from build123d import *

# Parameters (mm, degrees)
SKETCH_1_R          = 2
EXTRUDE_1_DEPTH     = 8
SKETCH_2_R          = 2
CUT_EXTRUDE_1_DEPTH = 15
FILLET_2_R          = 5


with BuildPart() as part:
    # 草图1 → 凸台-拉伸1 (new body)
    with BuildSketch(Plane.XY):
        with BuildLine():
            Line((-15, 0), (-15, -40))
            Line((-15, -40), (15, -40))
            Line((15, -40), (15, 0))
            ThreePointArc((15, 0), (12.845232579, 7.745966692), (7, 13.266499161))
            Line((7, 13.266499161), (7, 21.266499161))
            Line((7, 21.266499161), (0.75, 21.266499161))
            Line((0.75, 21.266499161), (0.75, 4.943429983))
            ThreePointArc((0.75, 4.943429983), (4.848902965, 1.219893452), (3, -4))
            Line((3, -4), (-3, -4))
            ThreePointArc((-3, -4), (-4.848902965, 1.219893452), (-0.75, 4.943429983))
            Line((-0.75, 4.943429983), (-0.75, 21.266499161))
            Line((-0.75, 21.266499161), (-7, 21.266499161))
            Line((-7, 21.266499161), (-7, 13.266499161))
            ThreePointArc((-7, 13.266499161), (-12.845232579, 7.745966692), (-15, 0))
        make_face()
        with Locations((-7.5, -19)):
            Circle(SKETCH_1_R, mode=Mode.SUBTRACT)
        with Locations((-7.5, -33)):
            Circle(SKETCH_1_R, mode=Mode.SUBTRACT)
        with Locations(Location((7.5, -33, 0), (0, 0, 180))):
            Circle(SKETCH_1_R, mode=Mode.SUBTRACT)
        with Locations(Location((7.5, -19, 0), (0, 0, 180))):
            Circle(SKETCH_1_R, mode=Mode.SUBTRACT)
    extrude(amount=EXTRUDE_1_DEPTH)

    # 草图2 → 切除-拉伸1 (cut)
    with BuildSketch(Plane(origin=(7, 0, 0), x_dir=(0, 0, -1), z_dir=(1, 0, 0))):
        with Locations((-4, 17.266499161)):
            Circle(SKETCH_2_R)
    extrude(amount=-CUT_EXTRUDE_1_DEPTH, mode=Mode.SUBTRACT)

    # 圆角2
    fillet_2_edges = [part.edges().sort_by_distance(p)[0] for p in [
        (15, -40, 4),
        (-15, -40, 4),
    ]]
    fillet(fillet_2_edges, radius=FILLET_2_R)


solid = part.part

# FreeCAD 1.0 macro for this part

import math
import FreeCAD as App
import Part
import Sketcher
Q = App.Units.Quantity


def edges_at(feature, points):
    """Names of the edges that pass closest to the given points."""
    edges = feature.Shape.Edges
    near = lambda p: min(range(len(edges)), key=lambda i: edges[i].distToShape(Part.Vertex(*p))[0])
    return sorted({f"Edge{near(p) + 1}" for p in points})

doc = App.newDocument("Part")
body = doc.addObject("PartDesign::Body", "Body")

# Sketch on XY plane
sketch1 = doc.addObject("Sketcher::SketchObject", "Sketch")
body.addObject(sketch1)
sketch1.AttachmentSupport = (doc.XY_Plane, [""])
sketch1.MapMode = "FlatFace"
sketch1.addGeometry(Part.LineSegment(App.Vector(-15, 0, 0), App.Vector(-15, -40, 0)), False)
sketch1.addGeometry(Part.LineSegment(App.Vector(-15, -40, 0), App.Vector(15, -40, 0)), False)
sketch1.addGeometry(Part.LineSegment(App.Vector(15, -40, 0), App.Vector(15, 0, 0)), False)
sketch1.addGeometry(Part.ArcOfCircle(Part.Circle(App.Vector(0, 0, 0), App.Vector(0, 0, 1), 15), math.radians(0), math.radians(62)), False)
sketch1.addGeometry(Part.LineSegment(App.Vector(7, 13.3, 0), App.Vector(7, 21.3, 0)), False)
sketch1.addGeometry(Part.LineSegment(App.Vector(7, 21.3, 0), App.Vector(0.8, 21.3, 0)), False)
sketch1.addGeometry(Part.LineSegment(App.Vector(0.8, 21.3, 0), App.Vector(0.8, 4.9, 0)), False)
sketch1.addGeometry(Part.ArcOfCircle(Part.Circle(App.Vector(0, 0, 0), App.Vector(0, 0, 1), 5), math.radians(-53), math.radians(81)), False)
sketch1.addGeometry(Part.LineSegment(App.Vector(3, -4, 0), App.Vector(-3, -4, 0)), False)
sketch1.addGeometry(Part.ArcOfCircle(Part.Circle(App.Vector(0, 0, 0), App.Vector(0, 0, 1), 5), math.radians(99), math.radians(233)), False)
sketch1.addGeometry(Part.LineSegment(App.Vector(-0.8, 4.9, 0), App.Vector(-0.8, 21.3, 0)), False)
sketch1.addGeometry(Part.LineSegment(App.Vector(-0.8, 21.3, 0), App.Vector(-7, 21.3, 0)), False)
sketch1.addGeometry(Part.LineSegment(App.Vector(-7, 21.3, 0), App.Vector(-7, 13.3, 0)), False)
sketch1.addGeometry(Part.ArcOfCircle(Part.Circle(App.Vector(0, 0, 0), App.Vector(0, 0, 1), 15), math.radians(118), math.radians(180)), False)
sketch1.addGeometry(Part.Circle(App.Vector(-7.5, -33, 0), App.Vector(0, 0, 1), 2), False)
sketch1.addGeometry(Part.Circle(App.Vector(7.5, -33, 0), App.Vector(0, 0, 1), 2), False)
sketch1.addGeometry(Part.Circle(App.Vector(-7.5, -19, 0), App.Vector(0, 0, 1), 2), False)
sketch1.addGeometry(Part.Circle(App.Vector(7.5, -19, 0), App.Vector(0, 0, 1), 2), False)
sketch1.addConstraint(Sketcher.Constraint("Coincident", 0, 2, 1, 1))
sketch1.addConstraint(Sketcher.Constraint("Coincident", 1, 2, 2, 1))
sketch1.addConstraint(Sketcher.Constraint("Tangent", 2, 2, 3, 1))
sketch1.addConstraint(Sketcher.Constraint("Coincident", 3, 2, 4, 1))
sketch1.addConstraint(Sketcher.Constraint("Coincident", 4, 2, 5, 1))
sketch1.addConstraint(Sketcher.Constraint("Coincident", 5, 2, 6, 1))
sketch1.addConstraint(Sketcher.Constraint("Coincident", 6, 2, 7, 2))
sketch1.addConstraint(Sketcher.Constraint("Coincident", 7, 1, 8, 1))
sketch1.addConstraint(Sketcher.Constraint("Coincident", 8, 2, 9, 2))
sketch1.addConstraint(Sketcher.Constraint("Coincident", 9, 1, 10, 1))
sketch1.addConstraint(Sketcher.Constraint("Coincident", 10, 2, 11, 1))
sketch1.addConstraint(Sketcher.Constraint("Coincident", 11, 2, 12, 1))
sketch1.addConstraint(Sketcher.Constraint("Coincident", 12, 2, 13, 1))
sketch1.addConstraint(Sketcher.Constraint("Tangent", 13, 2, 0, 1))
sketch1.addConstraint(Sketcher.Constraint("Vertical", 0))
sketch1.addConstraint(Sketcher.Constraint("Horizontal", 1))
sketch1.addConstraint(Sketcher.Constraint("Vertical", 2))
sketch1.addConstraint(Sketcher.Constraint("Vertical", 4))
sketch1.addConstraint(Sketcher.Constraint("Horizontal", 5))
sketch1.addConstraint(Sketcher.Constraint("Vertical", 6))
sketch1.addConstraint(Sketcher.Constraint("Horizontal", 8))
sketch1.addConstraint(Sketcher.Constraint("Vertical", 10))
sketch1.addConstraint(Sketcher.Constraint("Horizontal", 11))
sketch1.addConstraint(Sketcher.Constraint("Vertical", 12))
sketch1.addConstraint(Sketcher.Constraint("Coincident", 3, 3, -1, 1))
sketch1.addConstraint(Sketcher.Constraint("Coincident", 7, 3, -1, 1))
sketch1.addConstraint(Sketcher.Constraint("Coincident", 9, 3, -1, 1))
sketch1.addConstraint(Sketcher.Constraint("Coincident", 13, 3, -1, 1))
sketch1.addConstraint(Sketcher.Constraint("Equal", 7, 9))
sketch1.addConstraint(Sketcher.Constraint("Equal", 3, 13))
sketch1.addConstraint(Sketcher.Constraint("Equal", 14, 15))
sketch1.addConstraint(Sketcher.Constraint("Equal", 15, 16))
sketch1.addConstraint(Sketcher.Constraint("Equal", 16, 17))
sketch1.addConstraint(Sketcher.Constraint("Symmetric", 14, 3, 15, 3, -2))
sketch1.addConstraint(Sketcher.Constraint("Symmetric", 16, 3, 17, 3, -2))
sketch1.addConstraint(Sketcher.Constraint("Symmetric", 5, 2, 10, 2, -2))
sketch1.addConstraint(Sketcher.Constraint("Horizontal", 3, 2, 12, 2))
sketch1.addConstraint(Sketcher.Constraint("Vertical", 14, 3, 16, 3))
sketch1.addConstraint(Sketcher.Constraint("Diameter", 14, Q("4 mm")))
sketch1.addConstraint(Sketcher.Constraint("Radius", 3, Q("15 mm")))
sketch1.addConstraint(Sketcher.Constraint("Radius", 7, Q("5 mm")))
sketch1.addConstraint(Sketcher.Constraint("DistanceX", 8, 2, 8, 1, Q("6 mm")))
sketch1.addConstraint(Sketcher.Constraint("DistanceY", 0, 2, 0, 1, Q("40 mm")))
sketch1.addConstraint(Sketcher.Constraint("DistanceY", 4, 1, 4, 2, Q("8 mm")))
sketch1.addConstraint(Sketcher.Constraint("DistanceY", 14, 3, -1, 1, Q("33 mm")))
sketch1.addConstraint(Sketcher.Constraint("DistanceY", 16, 3, -1, 1, Q("19 mm")))
sketch1.addConstraint(Sketcher.Constraint("DistanceX", -1, 1, 3, 2, Q("7 mm")))
sketch1.addConstraint(Sketcher.Constraint("DistanceX", 14, 3, 15, 3, Q("15 mm")))
sketch1.addConstraint(Sketcher.Constraint("DistanceX", 5, 2, 5, 1, Q("6.25 mm")))
pad1 = doc.addObject("PartDesign::Pad", "Pad")
body.addObject(pad1)
pad1.Profile = sketch1
pad1.Length = 8

# Sketch on YZ plane
sketch2 = doc.addObject("Sketcher::SketchObject", "Sketch001")
body.addObject(sketch2)
sketch2.AttachmentSupport = (doc.YZ_Plane, [""])
sketch2.MapMode = "FlatFace"
sketch2.AttachmentOffset = App.Placement(App.Vector(0, 0, 7), App.Rotation())
sketch2.addGeometry(Part.Circle(App.Vector(17.3, 4, 0), App.Vector(0, 0, 1), 2), False)
sketch2.addConstraint(Sketcher.Constraint("Diameter", 0, Q("4 mm")))
sketch2.addConstraint(Sketcher.Constraint("DistanceY", -1, 1, 0, 3, Q("4 mm")))
sketch2.addConstraint(Sketcher.Constraint("DistanceX", -1, 1, 0, 3, Q("17.266499 mm")))
pocket1 = doc.addObject("PartDesign::Pocket", "Pocket")
body.addObject(pocket1)
pocket1.Profile = sketch2
pocket1.Length = 15
doc.recompute()

fillet = doc.addObject("PartDesign::Fillet", "Fillet")
body.addObject(fillet)
fillet.Base = (pocket1, edges_at(pocket1, [(15, -40, 4), (-15, -40, 4)]))
fillet.Radius = 5

doc.recompute()
